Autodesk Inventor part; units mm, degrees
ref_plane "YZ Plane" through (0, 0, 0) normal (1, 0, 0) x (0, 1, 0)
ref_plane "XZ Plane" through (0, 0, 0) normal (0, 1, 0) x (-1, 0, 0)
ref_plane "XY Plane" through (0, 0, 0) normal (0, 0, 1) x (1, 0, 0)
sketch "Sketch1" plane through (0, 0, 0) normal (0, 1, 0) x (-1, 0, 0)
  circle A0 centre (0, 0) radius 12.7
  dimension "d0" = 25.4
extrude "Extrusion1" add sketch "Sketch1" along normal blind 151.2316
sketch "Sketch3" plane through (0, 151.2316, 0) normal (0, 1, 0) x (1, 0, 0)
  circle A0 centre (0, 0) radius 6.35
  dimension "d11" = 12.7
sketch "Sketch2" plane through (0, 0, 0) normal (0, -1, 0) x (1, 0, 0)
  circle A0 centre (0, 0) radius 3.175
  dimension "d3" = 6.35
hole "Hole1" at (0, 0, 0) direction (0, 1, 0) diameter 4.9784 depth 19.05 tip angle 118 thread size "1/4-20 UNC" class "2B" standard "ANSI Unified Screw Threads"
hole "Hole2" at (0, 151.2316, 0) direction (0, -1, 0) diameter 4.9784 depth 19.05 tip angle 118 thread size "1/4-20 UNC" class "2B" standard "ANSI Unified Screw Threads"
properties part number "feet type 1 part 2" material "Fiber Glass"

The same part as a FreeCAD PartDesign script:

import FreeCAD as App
import Part
import Sketcher

V = App.Vector
Q = App.Units.Quantity

doc = App.newDocument("Part")
body = doc.addObject("PartDesign::Body", "Body")

# Sketch on XZ plane
sketch1 = body.newObject("Sketcher::SketchObject", "Sketch")
sketch1.AttachmentSupport = (doc.getObject("XZ_Plane"), [""])
sketch1.MapMode = "FlatFace"
sketch1.addGeometry(Part.Circle(V(0, 0, 0), V(0, 0, 1), 13), False)
sketch1.addConstraint([
    Sketcher.Constraint("Coincident", 0, 3, -1, 1),
    Sketcher.Constraint("Diameter", 0, Q("1 in")),
])
pad1 = body.newObject("PartDesign::Pad", "Pad")
pad1.Profile = sketch1
pad1.Length = Q("5.954 in")
pad1.Reversed = True

# Sketch on XZ plane
sketch2 = body.newObject("Sketcher::SketchObject", "Sketch001")
sketch2.AttachmentSupport = (doc.getObject("XZ_Plane"), [""])
sketch2.MapMode = "FlatFace"
sketch2.addGeometry(Part.Circle(V(0, 0, 0), V(0, 0, 1), 2.5), False)
sketch2.addConstraint([
    Sketcher.Constraint("Coincident", 0, 3, -1, 1),
    Sketcher.Constraint("Diameter", 0, Q("0.196 in")),
])
doc.recompute()
hole = body.newObject("PartDesign::Hole", "Hole")
hole.Profile = sketch2
hole.ThreadType = "None"
hole.Diameter = Q("0.196 in")
hole.DepthType = "Dimension"
hole.Depth = Q("0.75 in")
hole.DrillPoint = "Angled"
hole.DrillPointAngle = 118

# Sketch on XZ plane
sketch3 = body.newObject("Sketcher::SketchObject", "Sketch002")
sketch3.AttachmentSupport = (doc.getObject("XZ_Plane"), [""])
sketch3.MapMode = "FlatFace"
sketch3.AttachmentOffset = App.Placement(V(0, 0, -5.954 * 25.4), App.Rotation())
sketch3.addGeometry(Part.Circle(V(0, 0, 0), V(0, 0, 1), 2.5), False)
sketch3.addConstraint([
    Sketcher.Constraint("Coincident", 0, 3, -1, 1),
    Sketcher.Constraint("Diameter", 0, Q("0.196 in")),
])
doc.recompute()
hole2 = body.newObject("PartDesign::Hole", "Hole001")
hole2.Profile = sketch3
hole2.ThreadType = "None"
hole2.Diameter = Q("0.196 in")
hole2.DepthType = "Dimension"
hole2.Depth = Q("0.75 in")
hole2.DrillPoint = "Angled"
hole2.DrillPointAngle = 118
hole2.Reversed = True

doc.recompute()
